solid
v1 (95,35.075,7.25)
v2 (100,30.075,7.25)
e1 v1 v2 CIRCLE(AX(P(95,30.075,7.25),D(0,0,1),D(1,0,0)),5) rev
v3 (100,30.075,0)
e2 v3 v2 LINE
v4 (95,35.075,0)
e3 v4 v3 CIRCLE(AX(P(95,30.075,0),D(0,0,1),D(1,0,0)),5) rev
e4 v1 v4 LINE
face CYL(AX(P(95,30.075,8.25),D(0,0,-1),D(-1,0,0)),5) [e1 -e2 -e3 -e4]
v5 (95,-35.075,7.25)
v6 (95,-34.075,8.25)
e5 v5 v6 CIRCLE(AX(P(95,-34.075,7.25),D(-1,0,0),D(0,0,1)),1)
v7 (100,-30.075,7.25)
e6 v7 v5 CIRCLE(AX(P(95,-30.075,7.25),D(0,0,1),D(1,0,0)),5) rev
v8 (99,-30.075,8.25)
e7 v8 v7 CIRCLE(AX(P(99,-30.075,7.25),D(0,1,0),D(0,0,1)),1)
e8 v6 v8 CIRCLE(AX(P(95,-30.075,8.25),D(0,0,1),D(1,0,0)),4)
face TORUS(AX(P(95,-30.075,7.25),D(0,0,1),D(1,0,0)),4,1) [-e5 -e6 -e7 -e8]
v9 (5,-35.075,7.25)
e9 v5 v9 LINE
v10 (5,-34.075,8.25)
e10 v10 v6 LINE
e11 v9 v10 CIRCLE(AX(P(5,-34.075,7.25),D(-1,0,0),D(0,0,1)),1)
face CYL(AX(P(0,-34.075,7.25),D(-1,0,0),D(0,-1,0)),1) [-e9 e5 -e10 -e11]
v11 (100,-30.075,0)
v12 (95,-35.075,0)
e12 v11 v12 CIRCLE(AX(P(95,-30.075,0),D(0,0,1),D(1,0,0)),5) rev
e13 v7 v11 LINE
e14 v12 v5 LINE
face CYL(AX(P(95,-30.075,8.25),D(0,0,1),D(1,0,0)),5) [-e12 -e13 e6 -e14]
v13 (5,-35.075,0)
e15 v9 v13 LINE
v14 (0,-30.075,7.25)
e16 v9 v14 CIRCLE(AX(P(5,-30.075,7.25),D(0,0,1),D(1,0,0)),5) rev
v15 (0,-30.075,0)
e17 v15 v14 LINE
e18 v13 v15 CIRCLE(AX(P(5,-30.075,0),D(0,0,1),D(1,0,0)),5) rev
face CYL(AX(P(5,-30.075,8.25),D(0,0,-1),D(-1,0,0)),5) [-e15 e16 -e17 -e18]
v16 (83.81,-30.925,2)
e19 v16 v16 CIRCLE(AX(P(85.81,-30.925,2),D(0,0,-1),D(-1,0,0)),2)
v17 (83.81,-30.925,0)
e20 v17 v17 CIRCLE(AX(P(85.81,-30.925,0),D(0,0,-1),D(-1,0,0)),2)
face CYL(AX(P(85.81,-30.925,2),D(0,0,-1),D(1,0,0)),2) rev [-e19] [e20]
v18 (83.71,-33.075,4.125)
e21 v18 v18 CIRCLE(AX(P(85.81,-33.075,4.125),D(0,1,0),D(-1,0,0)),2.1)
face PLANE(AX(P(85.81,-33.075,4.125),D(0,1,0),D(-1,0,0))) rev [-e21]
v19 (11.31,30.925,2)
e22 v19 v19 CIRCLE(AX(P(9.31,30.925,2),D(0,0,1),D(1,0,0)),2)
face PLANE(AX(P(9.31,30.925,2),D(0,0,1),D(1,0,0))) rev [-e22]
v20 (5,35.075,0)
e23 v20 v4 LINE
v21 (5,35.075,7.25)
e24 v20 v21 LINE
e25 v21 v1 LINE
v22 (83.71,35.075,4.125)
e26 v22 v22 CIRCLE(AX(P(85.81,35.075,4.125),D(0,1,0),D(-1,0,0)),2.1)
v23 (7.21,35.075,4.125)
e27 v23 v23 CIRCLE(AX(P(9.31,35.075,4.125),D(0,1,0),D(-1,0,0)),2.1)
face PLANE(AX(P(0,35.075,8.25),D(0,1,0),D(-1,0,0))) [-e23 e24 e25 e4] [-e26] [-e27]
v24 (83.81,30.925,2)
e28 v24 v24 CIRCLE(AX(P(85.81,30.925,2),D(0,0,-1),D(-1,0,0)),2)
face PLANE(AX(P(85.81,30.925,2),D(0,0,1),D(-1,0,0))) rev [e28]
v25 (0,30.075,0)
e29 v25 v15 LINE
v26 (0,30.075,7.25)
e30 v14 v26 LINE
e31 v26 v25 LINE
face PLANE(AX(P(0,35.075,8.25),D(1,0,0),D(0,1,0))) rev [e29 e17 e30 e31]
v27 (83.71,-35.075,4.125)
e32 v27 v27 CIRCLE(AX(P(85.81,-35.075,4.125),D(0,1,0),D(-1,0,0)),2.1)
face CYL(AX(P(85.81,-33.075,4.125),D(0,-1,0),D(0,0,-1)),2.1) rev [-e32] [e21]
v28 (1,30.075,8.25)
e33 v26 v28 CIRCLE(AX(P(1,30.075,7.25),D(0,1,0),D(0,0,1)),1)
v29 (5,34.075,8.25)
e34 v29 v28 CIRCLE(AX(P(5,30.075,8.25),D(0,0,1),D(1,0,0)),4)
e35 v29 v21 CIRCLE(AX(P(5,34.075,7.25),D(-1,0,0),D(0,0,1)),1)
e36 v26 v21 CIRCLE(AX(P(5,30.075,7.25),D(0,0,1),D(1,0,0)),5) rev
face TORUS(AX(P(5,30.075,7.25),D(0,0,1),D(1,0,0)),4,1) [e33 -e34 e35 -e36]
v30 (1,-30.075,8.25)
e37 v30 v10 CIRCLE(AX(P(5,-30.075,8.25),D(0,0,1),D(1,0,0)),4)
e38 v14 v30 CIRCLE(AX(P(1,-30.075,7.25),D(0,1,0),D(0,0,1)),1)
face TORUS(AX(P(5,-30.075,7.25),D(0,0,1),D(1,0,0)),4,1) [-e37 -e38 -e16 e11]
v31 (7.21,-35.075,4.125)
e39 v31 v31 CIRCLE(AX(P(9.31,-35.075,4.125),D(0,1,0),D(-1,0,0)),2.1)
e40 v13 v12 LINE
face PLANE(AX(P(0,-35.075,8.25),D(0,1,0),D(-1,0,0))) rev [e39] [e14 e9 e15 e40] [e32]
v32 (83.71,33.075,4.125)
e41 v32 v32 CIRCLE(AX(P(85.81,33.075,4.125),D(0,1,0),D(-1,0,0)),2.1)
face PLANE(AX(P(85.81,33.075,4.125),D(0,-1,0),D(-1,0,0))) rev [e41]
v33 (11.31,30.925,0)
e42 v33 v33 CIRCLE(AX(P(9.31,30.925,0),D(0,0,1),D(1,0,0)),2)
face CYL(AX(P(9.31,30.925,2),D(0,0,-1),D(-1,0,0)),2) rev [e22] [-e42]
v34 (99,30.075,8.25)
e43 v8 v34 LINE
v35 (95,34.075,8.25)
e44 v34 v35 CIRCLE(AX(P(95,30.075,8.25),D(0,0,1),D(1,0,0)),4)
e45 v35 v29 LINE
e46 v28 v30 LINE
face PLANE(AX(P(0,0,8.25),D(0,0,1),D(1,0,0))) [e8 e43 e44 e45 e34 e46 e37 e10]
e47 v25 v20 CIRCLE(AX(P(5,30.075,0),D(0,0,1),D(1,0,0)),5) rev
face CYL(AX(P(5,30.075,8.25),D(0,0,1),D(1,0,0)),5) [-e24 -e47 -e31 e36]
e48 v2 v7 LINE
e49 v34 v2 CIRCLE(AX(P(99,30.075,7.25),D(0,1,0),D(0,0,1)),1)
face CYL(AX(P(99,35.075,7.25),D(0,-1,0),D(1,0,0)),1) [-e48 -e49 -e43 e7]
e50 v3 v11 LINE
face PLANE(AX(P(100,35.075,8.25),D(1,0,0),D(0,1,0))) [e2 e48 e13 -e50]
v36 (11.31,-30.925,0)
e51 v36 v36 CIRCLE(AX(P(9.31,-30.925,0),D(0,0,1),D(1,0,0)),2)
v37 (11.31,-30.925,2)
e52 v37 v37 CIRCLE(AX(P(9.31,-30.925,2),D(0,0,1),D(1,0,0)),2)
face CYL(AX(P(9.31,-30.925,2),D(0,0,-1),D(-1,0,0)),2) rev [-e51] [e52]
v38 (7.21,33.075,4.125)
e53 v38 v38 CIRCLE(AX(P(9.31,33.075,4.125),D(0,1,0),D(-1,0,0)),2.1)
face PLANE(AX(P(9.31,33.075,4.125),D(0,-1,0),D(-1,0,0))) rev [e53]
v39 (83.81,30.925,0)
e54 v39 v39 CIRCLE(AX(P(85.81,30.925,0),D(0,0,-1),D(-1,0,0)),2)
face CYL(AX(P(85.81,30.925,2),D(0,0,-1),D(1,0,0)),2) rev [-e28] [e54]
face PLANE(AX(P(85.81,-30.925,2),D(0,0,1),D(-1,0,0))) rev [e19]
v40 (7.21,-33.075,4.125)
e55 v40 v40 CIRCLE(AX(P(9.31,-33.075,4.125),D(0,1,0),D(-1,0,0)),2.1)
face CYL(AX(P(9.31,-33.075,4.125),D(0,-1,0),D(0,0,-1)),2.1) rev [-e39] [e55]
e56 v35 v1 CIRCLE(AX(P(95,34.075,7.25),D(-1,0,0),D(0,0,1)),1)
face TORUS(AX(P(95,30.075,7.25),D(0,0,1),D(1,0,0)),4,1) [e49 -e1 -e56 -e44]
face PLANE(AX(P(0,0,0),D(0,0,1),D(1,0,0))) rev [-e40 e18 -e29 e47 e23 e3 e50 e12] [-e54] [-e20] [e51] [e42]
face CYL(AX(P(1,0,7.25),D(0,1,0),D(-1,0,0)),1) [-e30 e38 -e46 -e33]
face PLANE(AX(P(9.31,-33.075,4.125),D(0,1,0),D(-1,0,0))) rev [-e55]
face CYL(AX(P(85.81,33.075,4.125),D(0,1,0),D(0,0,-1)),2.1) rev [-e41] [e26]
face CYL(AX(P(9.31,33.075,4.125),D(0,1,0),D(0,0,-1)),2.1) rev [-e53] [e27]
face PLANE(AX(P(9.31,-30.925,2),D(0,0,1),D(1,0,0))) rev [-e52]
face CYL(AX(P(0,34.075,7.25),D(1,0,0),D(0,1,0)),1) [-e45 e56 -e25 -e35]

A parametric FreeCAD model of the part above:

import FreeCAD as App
import Part
import Sketcher
from FreeCAD import Vector


def edges_at(feature, points):
    """Names of the edges that pass closest to the given points."""
    edges = feature.Shape.Edges
    near = lambda p: min(range(len(edges)), key=lambda i: edges[i].distToShape(Part.Vertex(*p))[0])
    return sorted({f"Edge{near(p) + 1}" for p in points})


def add_polygon(sketch, points):
    """Adds a closed chain of lines whose ends are joined by coincident constraints."""
    first, n = sketch.GeometryCount, len(points)
    for a, b in zip(points, points[1:] + points[:1]):
        sketch.addGeometry(Part.LineSegment(App.Vector(*a, 0), App.Vector(*b, 0)), False)
    for i in range(n):
        sketch.addConstraint(Sketcher.Constraint("Coincident", first + i, 2, first + (i + 1) % n, 1))

doc = App.newDocument("Part")
body = doc.addObject("PartDesign::Body", "Body")

# Sketch on XY plane
sketch1 = doc.addObject("Sketcher::SketchObject", "Sketch")
body.addObject(sketch1)
sketch1.AttachmentSupport = (doc.XY_Plane, [""])
sketch1.MapMode = "FlatFace"
add_polygon(sketch1, [(0, 35.075), (0, -35.075), (100, -35.075), (100, 35.075)])  # lines 0-3
sketch1.addConstraint(Sketcher.Constraint("Vertical", 0))
sketch1.addConstraint(Sketcher.Constraint("Horizontal", 1))
sketch1.addConstraint(Sketcher.Constraint("Vertical", 2))
sketch1.addConstraint(Sketcher.Constraint("Horizontal", 3))
sketch1.addConstraint(Sketcher.Constraint("Symmetric", 0, 2, 3, 2, -1, 1))
sketch1.addConstraint(Sketcher.Constraint("DistanceX", 1, 1, 1, 2, 100.0))
sketch1.addConstraint(Sketcher.Constraint("DistanceY", 0, 2, 0, 1, 70.15))
pad1 = doc.addObject("PartDesign::Pad", "Pad")
body.addObject(pad1)
pad1.Profile = sketch1
pad1.Length = 8.25
doc.recompute()

fillet = doc.addObject("PartDesign::Fillet", "Fillet")
body.addObject(fillet)
fillet.Base = (pad1, edges_at(pad1, [
    (0, 35.075, 4.125),
    (100, 35.075, 4.125),
    (100, -35.075, 4.125),
    (0, -35.075, 4.125),
]))
fillet.Radius = 5

# Sketch on XZ plane
sketch2 = doc.addObject("Sketcher::SketchObject", "Sketch001")
body.addObject(sketch2)
sketch2.AttachmentSupport = (doc.XZ_Plane, [""])
sketch2.MapMode = "FlatFace"
sketch2.AttachmentOffset = App.Placement(Vector(0, 0, 35.075), App.Rotation())
sketch2.addGeometry(Part.Circle(Vector(9.31, 4.125, 0), Vector(0, 0, 1), 2.1), False)
sketch2.addGeometry(Part.Circle(Vector(85.81, 4.125, 0), Vector(0, 0, 1), 2.1), False)
sketch2.addConstraint(Sketcher.Constraint("Equal", 0, 1))
sketch2.addConstraint(Sketcher.Constraint("Horizontal", 0, 3, 1, 3))
sketch2.addConstraint(Sketcher.Constraint("Diameter", 0, 4.2))
sketch2.addConstraint(Sketcher.Constraint("DistanceX", 0, 3, 1, 3, 76.5))
sketch2.addConstraint(Sketcher.Constraint("DistanceX", -1, 1, 0, 3, 9.31))
sketch2.addConstraint(Sketcher.Constraint("DistanceY", -1, 1, 0, 3, 4.125))
pocket1 = doc.addObject("PartDesign::Pocket", "Pocket")
body.addObject(pocket1)
pocket1.Profile = sketch2
pocket1.Length = 2
doc.recompute()

mirrored = doc.addObject("PartDesign::Mirrored", "Mirrored")
body.addObject(mirrored)
mirrored.Originals = [pocket1]
mirrored.MirrorPlane = (doc.XZ_Plane, [""])
body.Tip = mirrored
doc.recompute()

fillet2 = doc.addObject("PartDesign::Fillet", "Fillet001")
body.addObject(fillet2)
fillet2.Base = (mirrored, edges_at(mirrored, [
    (100, 0, 8.25),
    (50, -35.075, 8.25),
    (0, 0, 8.25),
    (50, 35.075, 8.25),
    (1.464, 33.611, 8.25),
    (98.536, 33.611, 8.25),
    (1.464, -33.611, 8.25),
    (98.536, -33.611, 8.25),
]))
fillet2.Radius = 1

# Sketch on XY plane
sketch3 = doc.addObject("Sketcher::SketchObject", "Sketch002")
body.addObject(sketch3)
sketch3.AttachmentSupport = (doc.XY_Plane, [""])
sketch3.MapMode = "FlatFace"
sketch3.addGeometry(Part.Circle(Vector(9.31, -30.925, 0), Vector(0, 0, 1), 2), False)
sketch3.addGeometry(Part.Circle(Vector(9.31, 30.925, 0), Vector(0, 0, 1), 2), False)
sketch3.addConstraint(Sketcher.Constraint("Equal", 0, 1))
sketch3.addConstraint(Sketcher.Constraint("Symmetric", 0, 3, 1, 3, -1))
sketch3.addConstraint(Sketcher.Constraint("Diameter", 0, 4.0))
sketch3.addConstraint(Sketcher.Constraint("DistanceX", -1, 1, 0, 3, 9.31))
sketch3.addConstraint(Sketcher.Constraint("DistanceY", 0, 3, 1, 3, 61.85))
pocket2 = doc.addObject("PartDesign::Pocket", "Pocket001")
body.addObject(pocket2)
pocket2.Profile = sketch3
pocket2.Length = 2
pocket2.Reversed = True
doc.recompute()

datumplane = doc.addObject("PartDesign::Plane", "DatumPlane")
body.addObject(datumplane)
datumplane.AttachmentSupport = (doc.YZ_Plane, [""])
datumplane.MapMode = "FlatFace"
datumplane.AttachmentOffset = App.Placement(Vector(0, 0, 47.56), App.Rotation())
mirrored2 = doc.addObject("PartDesign::Mirrored", "Mirrored001")
body.addObject(mirrored2)
mirrored2.Originals = [pocket2]
mirrored2.MirrorPlane = (datumplane, [""])
body.Tip = mirrored2

doc.recompute()
